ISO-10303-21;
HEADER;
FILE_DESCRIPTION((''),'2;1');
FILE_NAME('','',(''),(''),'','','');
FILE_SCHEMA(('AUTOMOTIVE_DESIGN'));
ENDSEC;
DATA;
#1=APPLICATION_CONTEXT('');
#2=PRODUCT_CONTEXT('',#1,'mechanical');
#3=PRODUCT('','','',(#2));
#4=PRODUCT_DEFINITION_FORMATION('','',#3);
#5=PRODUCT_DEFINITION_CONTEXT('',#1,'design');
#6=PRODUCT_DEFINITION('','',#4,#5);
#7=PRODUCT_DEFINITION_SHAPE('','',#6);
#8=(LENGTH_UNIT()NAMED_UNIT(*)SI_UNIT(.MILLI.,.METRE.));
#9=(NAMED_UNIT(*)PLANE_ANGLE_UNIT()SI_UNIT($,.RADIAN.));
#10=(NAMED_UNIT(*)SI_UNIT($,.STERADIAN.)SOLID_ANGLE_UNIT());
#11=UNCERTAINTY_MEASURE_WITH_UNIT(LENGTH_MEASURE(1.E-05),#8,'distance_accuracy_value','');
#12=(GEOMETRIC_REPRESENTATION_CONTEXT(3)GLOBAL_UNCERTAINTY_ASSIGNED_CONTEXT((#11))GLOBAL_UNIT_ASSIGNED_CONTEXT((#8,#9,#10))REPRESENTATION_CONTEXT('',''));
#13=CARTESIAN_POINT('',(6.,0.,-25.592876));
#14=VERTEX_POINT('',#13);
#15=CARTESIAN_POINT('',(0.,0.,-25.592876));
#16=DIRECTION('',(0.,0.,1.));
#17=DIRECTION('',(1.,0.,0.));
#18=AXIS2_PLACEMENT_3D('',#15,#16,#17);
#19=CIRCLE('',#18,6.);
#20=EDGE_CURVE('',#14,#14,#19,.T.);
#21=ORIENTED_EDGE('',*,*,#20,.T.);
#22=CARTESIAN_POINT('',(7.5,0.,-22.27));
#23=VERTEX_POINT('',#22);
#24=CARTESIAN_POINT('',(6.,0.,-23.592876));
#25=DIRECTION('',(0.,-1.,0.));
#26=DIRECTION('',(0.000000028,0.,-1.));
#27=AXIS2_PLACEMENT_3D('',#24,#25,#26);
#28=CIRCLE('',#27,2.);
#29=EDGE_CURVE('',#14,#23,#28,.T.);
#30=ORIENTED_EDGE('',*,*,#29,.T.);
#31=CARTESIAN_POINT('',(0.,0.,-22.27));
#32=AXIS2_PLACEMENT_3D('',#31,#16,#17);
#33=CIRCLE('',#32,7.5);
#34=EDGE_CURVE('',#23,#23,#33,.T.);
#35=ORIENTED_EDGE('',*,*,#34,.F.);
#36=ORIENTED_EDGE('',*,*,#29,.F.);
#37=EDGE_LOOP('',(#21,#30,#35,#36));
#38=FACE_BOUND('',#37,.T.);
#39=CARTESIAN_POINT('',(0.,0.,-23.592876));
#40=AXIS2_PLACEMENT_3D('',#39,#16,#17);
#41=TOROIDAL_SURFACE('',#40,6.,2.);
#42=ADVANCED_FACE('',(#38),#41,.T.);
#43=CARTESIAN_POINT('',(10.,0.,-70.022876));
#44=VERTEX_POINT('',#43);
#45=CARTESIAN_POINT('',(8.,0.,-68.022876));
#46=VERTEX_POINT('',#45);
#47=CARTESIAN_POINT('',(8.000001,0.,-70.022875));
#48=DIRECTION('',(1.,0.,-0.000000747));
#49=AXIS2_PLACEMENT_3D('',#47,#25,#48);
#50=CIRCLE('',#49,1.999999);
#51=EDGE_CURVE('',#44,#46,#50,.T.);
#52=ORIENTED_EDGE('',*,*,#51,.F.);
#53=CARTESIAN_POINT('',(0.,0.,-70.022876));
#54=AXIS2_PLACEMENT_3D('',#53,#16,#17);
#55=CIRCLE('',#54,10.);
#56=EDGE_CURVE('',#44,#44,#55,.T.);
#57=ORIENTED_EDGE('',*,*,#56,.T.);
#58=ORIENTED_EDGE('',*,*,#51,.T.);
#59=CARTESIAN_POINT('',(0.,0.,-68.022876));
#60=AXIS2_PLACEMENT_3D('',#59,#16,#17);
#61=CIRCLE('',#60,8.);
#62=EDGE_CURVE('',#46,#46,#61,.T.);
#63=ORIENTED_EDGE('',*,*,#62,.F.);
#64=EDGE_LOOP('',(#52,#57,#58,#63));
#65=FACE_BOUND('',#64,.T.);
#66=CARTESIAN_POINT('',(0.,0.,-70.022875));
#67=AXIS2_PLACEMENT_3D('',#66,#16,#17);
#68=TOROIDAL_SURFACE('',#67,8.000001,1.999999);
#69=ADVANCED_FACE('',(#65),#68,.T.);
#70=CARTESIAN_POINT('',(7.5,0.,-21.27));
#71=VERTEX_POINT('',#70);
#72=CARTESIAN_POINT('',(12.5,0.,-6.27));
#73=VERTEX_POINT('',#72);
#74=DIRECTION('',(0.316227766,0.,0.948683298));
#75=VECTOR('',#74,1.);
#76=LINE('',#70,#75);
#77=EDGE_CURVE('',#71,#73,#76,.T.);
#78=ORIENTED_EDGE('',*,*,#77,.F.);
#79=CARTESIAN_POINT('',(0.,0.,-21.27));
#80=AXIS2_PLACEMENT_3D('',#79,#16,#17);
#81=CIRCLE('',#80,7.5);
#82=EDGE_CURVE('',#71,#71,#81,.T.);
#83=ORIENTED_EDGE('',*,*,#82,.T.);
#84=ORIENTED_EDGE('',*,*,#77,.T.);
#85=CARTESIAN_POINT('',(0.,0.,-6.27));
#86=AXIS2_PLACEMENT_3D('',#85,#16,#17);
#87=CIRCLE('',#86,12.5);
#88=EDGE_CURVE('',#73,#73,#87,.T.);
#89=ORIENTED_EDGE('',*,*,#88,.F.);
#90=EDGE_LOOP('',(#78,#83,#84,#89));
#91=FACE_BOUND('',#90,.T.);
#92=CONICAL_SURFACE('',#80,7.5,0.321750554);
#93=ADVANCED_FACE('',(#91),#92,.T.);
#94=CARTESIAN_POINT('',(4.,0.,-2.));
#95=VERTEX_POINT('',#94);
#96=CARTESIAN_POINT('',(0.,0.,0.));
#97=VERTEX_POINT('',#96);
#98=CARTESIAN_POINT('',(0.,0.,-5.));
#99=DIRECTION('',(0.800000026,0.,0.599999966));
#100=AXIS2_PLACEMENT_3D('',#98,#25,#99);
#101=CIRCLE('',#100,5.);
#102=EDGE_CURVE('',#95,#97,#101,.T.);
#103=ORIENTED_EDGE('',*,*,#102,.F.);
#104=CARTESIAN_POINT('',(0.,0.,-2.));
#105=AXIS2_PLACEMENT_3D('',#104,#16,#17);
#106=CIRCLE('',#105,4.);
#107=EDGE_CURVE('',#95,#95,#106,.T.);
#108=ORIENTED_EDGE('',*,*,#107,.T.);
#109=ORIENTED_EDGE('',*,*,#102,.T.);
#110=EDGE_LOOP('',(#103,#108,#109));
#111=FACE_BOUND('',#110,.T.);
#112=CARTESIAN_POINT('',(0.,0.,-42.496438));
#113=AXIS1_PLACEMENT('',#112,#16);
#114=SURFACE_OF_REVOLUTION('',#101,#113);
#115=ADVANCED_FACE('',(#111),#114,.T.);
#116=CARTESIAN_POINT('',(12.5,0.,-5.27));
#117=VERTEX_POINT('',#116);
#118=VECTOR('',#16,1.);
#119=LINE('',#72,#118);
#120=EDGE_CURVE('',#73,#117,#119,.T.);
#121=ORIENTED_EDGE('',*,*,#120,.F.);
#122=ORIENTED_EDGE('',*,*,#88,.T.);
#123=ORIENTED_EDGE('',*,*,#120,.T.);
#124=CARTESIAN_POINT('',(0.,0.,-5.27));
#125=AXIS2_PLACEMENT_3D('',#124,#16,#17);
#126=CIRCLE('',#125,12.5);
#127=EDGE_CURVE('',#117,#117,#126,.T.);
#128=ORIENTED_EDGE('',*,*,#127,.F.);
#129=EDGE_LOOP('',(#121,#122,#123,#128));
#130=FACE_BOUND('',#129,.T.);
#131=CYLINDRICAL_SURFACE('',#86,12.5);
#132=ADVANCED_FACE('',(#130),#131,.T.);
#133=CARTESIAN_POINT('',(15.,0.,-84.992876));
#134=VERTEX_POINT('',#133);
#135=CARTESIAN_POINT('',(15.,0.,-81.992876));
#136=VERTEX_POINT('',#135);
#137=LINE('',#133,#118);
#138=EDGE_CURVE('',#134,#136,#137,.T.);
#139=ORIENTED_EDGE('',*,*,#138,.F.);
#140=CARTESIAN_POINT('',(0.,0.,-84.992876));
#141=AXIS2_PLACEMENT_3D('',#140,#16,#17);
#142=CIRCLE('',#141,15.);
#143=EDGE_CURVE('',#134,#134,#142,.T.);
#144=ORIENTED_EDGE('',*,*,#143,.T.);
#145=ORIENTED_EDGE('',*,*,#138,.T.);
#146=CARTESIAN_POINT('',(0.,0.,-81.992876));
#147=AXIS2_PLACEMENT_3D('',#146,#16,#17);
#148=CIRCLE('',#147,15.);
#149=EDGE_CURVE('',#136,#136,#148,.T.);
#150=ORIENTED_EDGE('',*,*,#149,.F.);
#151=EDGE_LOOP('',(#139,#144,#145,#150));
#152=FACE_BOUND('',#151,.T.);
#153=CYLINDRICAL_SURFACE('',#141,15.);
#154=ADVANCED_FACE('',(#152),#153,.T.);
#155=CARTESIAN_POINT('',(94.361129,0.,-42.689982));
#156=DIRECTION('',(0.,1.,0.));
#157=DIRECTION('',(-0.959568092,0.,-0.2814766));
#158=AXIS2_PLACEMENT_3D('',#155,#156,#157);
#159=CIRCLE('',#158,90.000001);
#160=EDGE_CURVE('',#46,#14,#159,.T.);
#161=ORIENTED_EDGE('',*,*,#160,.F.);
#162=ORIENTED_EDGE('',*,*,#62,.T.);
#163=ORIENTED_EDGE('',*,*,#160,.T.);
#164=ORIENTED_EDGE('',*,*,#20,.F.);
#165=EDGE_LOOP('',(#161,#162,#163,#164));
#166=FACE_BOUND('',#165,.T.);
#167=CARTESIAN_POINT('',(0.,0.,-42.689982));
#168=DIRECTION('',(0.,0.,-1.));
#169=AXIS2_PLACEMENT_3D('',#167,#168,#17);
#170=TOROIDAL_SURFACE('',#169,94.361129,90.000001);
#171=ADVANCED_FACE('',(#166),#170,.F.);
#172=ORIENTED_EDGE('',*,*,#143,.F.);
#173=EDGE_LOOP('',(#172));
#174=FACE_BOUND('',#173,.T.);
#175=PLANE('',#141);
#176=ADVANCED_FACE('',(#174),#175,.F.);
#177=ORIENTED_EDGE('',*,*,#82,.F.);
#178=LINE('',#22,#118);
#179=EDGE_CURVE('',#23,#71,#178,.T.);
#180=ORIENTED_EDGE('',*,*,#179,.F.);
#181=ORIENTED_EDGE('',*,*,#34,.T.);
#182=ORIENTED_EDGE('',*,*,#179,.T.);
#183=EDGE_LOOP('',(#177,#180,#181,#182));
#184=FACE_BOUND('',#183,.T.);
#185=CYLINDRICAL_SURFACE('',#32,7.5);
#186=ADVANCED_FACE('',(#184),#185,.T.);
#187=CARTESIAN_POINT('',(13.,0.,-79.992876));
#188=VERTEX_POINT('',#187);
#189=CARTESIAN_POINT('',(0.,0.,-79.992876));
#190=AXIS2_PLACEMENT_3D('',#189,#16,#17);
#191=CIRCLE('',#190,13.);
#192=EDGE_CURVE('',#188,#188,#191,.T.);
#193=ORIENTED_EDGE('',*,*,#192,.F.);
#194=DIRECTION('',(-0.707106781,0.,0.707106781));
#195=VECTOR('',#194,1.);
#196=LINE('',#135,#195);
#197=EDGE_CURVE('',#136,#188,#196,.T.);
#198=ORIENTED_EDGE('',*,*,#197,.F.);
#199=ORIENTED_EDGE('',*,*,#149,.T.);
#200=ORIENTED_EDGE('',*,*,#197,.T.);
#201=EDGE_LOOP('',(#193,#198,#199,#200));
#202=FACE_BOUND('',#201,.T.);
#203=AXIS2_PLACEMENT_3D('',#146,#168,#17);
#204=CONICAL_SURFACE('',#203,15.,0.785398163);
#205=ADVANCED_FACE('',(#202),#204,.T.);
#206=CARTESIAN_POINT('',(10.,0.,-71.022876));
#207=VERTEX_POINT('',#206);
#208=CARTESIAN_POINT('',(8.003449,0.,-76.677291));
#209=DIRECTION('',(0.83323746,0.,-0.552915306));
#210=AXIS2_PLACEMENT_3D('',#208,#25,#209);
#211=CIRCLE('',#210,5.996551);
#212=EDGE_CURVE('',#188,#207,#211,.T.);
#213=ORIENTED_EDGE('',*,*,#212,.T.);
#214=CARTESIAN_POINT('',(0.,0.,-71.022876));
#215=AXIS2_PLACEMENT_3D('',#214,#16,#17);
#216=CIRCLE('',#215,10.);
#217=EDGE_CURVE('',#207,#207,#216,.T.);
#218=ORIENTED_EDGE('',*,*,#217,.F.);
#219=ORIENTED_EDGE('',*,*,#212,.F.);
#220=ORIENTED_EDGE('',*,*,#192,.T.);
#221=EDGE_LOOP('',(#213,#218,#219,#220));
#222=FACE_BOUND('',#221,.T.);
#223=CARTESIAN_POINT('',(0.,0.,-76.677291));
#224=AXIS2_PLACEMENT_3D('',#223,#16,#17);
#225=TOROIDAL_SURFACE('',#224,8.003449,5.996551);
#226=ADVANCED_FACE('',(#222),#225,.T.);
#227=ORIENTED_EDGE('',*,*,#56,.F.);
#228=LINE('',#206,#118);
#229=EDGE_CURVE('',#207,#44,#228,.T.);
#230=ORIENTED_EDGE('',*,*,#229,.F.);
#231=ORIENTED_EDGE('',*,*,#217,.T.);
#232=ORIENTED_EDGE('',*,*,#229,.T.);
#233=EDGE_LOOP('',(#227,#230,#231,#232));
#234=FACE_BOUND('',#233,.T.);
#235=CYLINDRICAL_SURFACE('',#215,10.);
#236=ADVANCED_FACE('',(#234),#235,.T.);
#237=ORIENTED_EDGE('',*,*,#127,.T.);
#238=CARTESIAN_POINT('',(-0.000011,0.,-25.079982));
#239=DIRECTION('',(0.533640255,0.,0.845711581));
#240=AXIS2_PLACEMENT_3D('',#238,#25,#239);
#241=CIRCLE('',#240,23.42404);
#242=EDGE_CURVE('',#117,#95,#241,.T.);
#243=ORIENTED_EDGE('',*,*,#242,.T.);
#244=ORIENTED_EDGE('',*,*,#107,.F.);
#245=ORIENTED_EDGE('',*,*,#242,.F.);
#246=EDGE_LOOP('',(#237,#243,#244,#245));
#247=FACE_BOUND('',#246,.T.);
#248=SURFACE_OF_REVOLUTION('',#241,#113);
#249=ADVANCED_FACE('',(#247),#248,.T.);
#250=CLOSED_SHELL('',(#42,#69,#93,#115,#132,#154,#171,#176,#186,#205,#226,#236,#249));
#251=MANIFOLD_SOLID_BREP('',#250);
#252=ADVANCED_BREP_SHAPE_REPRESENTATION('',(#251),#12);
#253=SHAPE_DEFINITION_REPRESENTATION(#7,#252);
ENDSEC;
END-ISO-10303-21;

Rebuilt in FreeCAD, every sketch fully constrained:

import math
import FreeCAD as App
import Part
import Sketcher
from FreeCAD import Vector
Q = App.Units.Quantity

doc = App.newDocument("Part")
body = doc.addObject("PartDesign::Body", "Body")

# Sketch on XZ plane
sketch1 = doc.addObject("Sketcher::SketchObject", "Sketch")
body.addObject(sketch1)
sketch1.AttachmentSupport = (doc.XZ_Plane, [""])
sketch1.MapMode = "FlatFace"
sketch1.addGeometry(Part.ArcOfCircle(Part.Circle(Vector(-0.000011, -25.079982, 0), Vector(0, 0, 1), 23.42404), math.radians(57.748256), math.radians(80.167688)), False)
sketch1.addGeometry(Part.ArcOfCircle(Part.Circle(Vector(0, -5, 0), Vector(0, 0, 1), 5), math.radians(36.869895), math.radians(90.000002)), False)
sketch1.addGeometry(Part.LineSegment(Vector(0, 0, 0), Vector(0, -84.992876, 0)), False)
sketch1.addGeometry(Part.LineSegment(Vector(0, -84.992876, 0), Vector(15, -84.992876, 0)), False)
sketch1.addGeometry(Part.LineSegment(Vector(15, -84.992876, 0), Vector(15, -81.992876, 0)), False)
sketch1.addGeometry(Part.LineSegment(Vector(15, -81.992876, 0), Vector(13, -79.992876, 0)), False)
sketch1.addGeometry(Part.ArcOfCircle(Part.Circle(Vector(8.003449, -76.677291, 0), Vector(0, 0, 1), 5.996551), math.radians(-33.567246), math.radians(70.55208)), False)
sketch1.addGeometry(Part.LineSegment(Vector(10, -71.022876, 0), Vector(10, -70.022876, 0)), False)
sketch1.addGeometry(Part.ArcOfCircle(Part.Circle(Vector(8.000001, -70.022875, 0), Vector(0, 0, 1), 1.999999), math.radians(-0.000043), math.radians(90.000043)), False)
sketch1.addGeometry(Part.ArcOfCircle(Part.Circle(Vector(94.361129, -42.689982, 0), Vector(0, 0, 1), 90.000001), math.radians(169.049093), math.radians(196.348353)), False)
sketch1.addGeometry(Part.ArcOfCircle(Part.Circle(Vector(6, -23.592876, 0), Vector(0, 0, 1), 2), math.radians(-89.999998), math.radians(41.409625)), False)
sketch1.addGeometry(Part.LineSegment(Vector(7.5, -22.27, 0), Vector(7.5, -21.27, 0)), False)
sketch1.addGeometry(Part.LineSegment(Vector(7.5, -21.27, 0), Vector(12.5, -6.27, 0)), False)
sketch1.addGeometry(Part.LineSegment(Vector(12.5, -6.27, 0), Vector(12.5, -5.27, 0)), False)
sketch1.addConstraint(Sketcher.Constraint("Coincident", 0, 2, 1, 1))
sketch1.addConstraint(Sketcher.Constraint("Coincident", 1, 2, 2, 1))
sketch1.addConstraint(Sketcher.Constraint("Coincident", 2, 2, 3, 1))
sketch1.addConstraint(Sketcher.Constraint("Coincident", 3, 2, 4, 1))
sketch1.addConstraint(Sketcher.Constraint("Coincident", 4, 2, 5, 1))
sketch1.addConstraint(Sketcher.Constraint("Coincident", 5, 2, 6, 1))
sketch1.addConstraint(Sketcher.Constraint("Coincident", 6, 2, 7, 1))
sketch1.addConstraint(Sketcher.Constraint("Tangent", 7, 2, 8, 1))
sketch1.addConstraint(Sketcher.Constraint("Coincident", 8, 2, 9, 2))
sketch1.addConstraint(Sketcher.Constraint("Coincident", 9, 1, 10, 1))
sketch1.addConstraint(Sketcher.Constraint("Coincident", 10, 2, 11, 1))
sketch1.addConstraint(Sketcher.Constraint("Coincident", 11, 2, 12, 1))
sketch1.addConstraint(Sketcher.Constraint("Coincident", 12, 2, 13, 1))
sketch1.addConstraint(Sketcher.Constraint("Coincident", 13, 2, 0, 1))
sketch1.addConstraint(Sketcher.Constraint("Vertical", 2))
sketch1.addConstraint(Sketcher.Constraint("Horizontal", 3))
sketch1.addConstraint(Sketcher.Constraint("Vertical", 4))
sketch1.addConstraint(Sketcher.Constraint("Vertical", 7))
sketch1.addConstraint(Sketcher.Constraint("Vertical", 11))
sketch1.addConstraint(Sketcher.Constraint("Vertical", 13))
sketch1.addConstraint(Sketcher.Constraint("Coincident", 1, 2, -1, 1))
sketch1.addConstraint(Sketcher.Constraint("Equal", 8, 10))
sketch1.addConstraint(Sketcher.Constraint("PointOnObject", 1, 3, -2))
sketch1.addConstraint(Sketcher.Constraint("Vertical", 10, 3, 9, 1))
sketch1.addConstraint(Sketcher.Constraint("Equal", 7, 11))
sketch1.addConstraint(Sketcher.Constraint("Equal", 11, 13))
sketch1.addConstraint(Sketcher.Constraint("Radius", 1, 5.0))
sketch1.addConstraint(Sketcher.Constraint("Radius", 8, 1.999999))
sketch1.addConstraint(Sketcher.Constraint("Radius", 9, 90.000001))
sketch1.addConstraint(Sketcher.Constraint("DistanceX", 3, 1, 3, 2, 15.0))
sketch1.addConstraint(Sketcher.Constraint("DistanceY", 4, 1, 4, 2, 3.0))
sketch1.addConstraint(Sketcher.Constraint("DistanceY", 7, 1, 7, 2, 1.0))
sketch1.addConstraint(Sketcher.Constraint("Angle", 5, Q("135 deg")))
sketch1.addConstraint(Sketcher.Constraint("DistanceX", -1, 1, 8, 3, 8.000001))
sketch1.addConstraint(Sketcher.Constraint("DistanceX", -1, 1, 10, 3, 6.0))
sketch1.addConstraint(Sketcher.Constraint("DistanceX", -1, 1, 0, 2, 4.0))
sketch1.addConstraint(Sketcher.Constraint("DistanceX", -1, 1, 5, 2, 13.0))
sketch1.addConstraint(Sketcher.Constraint("DistanceX", -1, 1, 8, 2, 8.0))
sketch1.addConstraint(Sketcher.Constraint("DistanceX", 11, 2, 12, 2, 5.0))
sketch1.addConstraint(Sketcher.Constraint("DistanceY", 11, 2, 12, 2, 15.0))
sketch1.addConstraint(Sketcher.Constraint("DistanceX", -1, 1, 10, 2, 7.5))
sketch1.addConstraint(Sketcher.Constraint("DistanceY", 2, 2, 10, 3, 61.4))
sketch1.addConstraint(Sketcher.Constraint("DistanceY", 10, 2, -1, 1, 22.27))
sketch1.addConstraint(Sketcher.Constraint("Radius", 0, 23.42404))
sketch1.addConstraint(Sketcher.Constraint("Radius", 6, 5.996551))
sketch1.addConstraint(Sketcher.Constraint("DistanceY", 9, 3, 0, 3, 17.61))
revolution = doc.addObject("PartDesign::Revolution", "Revolution")
body.addObject(revolution)
revolution.Profile = sketch1
revolution.ReferenceAxis = (sketch1, ["V_Axis"])
revolution.Angle = 360

doc.recompute()
